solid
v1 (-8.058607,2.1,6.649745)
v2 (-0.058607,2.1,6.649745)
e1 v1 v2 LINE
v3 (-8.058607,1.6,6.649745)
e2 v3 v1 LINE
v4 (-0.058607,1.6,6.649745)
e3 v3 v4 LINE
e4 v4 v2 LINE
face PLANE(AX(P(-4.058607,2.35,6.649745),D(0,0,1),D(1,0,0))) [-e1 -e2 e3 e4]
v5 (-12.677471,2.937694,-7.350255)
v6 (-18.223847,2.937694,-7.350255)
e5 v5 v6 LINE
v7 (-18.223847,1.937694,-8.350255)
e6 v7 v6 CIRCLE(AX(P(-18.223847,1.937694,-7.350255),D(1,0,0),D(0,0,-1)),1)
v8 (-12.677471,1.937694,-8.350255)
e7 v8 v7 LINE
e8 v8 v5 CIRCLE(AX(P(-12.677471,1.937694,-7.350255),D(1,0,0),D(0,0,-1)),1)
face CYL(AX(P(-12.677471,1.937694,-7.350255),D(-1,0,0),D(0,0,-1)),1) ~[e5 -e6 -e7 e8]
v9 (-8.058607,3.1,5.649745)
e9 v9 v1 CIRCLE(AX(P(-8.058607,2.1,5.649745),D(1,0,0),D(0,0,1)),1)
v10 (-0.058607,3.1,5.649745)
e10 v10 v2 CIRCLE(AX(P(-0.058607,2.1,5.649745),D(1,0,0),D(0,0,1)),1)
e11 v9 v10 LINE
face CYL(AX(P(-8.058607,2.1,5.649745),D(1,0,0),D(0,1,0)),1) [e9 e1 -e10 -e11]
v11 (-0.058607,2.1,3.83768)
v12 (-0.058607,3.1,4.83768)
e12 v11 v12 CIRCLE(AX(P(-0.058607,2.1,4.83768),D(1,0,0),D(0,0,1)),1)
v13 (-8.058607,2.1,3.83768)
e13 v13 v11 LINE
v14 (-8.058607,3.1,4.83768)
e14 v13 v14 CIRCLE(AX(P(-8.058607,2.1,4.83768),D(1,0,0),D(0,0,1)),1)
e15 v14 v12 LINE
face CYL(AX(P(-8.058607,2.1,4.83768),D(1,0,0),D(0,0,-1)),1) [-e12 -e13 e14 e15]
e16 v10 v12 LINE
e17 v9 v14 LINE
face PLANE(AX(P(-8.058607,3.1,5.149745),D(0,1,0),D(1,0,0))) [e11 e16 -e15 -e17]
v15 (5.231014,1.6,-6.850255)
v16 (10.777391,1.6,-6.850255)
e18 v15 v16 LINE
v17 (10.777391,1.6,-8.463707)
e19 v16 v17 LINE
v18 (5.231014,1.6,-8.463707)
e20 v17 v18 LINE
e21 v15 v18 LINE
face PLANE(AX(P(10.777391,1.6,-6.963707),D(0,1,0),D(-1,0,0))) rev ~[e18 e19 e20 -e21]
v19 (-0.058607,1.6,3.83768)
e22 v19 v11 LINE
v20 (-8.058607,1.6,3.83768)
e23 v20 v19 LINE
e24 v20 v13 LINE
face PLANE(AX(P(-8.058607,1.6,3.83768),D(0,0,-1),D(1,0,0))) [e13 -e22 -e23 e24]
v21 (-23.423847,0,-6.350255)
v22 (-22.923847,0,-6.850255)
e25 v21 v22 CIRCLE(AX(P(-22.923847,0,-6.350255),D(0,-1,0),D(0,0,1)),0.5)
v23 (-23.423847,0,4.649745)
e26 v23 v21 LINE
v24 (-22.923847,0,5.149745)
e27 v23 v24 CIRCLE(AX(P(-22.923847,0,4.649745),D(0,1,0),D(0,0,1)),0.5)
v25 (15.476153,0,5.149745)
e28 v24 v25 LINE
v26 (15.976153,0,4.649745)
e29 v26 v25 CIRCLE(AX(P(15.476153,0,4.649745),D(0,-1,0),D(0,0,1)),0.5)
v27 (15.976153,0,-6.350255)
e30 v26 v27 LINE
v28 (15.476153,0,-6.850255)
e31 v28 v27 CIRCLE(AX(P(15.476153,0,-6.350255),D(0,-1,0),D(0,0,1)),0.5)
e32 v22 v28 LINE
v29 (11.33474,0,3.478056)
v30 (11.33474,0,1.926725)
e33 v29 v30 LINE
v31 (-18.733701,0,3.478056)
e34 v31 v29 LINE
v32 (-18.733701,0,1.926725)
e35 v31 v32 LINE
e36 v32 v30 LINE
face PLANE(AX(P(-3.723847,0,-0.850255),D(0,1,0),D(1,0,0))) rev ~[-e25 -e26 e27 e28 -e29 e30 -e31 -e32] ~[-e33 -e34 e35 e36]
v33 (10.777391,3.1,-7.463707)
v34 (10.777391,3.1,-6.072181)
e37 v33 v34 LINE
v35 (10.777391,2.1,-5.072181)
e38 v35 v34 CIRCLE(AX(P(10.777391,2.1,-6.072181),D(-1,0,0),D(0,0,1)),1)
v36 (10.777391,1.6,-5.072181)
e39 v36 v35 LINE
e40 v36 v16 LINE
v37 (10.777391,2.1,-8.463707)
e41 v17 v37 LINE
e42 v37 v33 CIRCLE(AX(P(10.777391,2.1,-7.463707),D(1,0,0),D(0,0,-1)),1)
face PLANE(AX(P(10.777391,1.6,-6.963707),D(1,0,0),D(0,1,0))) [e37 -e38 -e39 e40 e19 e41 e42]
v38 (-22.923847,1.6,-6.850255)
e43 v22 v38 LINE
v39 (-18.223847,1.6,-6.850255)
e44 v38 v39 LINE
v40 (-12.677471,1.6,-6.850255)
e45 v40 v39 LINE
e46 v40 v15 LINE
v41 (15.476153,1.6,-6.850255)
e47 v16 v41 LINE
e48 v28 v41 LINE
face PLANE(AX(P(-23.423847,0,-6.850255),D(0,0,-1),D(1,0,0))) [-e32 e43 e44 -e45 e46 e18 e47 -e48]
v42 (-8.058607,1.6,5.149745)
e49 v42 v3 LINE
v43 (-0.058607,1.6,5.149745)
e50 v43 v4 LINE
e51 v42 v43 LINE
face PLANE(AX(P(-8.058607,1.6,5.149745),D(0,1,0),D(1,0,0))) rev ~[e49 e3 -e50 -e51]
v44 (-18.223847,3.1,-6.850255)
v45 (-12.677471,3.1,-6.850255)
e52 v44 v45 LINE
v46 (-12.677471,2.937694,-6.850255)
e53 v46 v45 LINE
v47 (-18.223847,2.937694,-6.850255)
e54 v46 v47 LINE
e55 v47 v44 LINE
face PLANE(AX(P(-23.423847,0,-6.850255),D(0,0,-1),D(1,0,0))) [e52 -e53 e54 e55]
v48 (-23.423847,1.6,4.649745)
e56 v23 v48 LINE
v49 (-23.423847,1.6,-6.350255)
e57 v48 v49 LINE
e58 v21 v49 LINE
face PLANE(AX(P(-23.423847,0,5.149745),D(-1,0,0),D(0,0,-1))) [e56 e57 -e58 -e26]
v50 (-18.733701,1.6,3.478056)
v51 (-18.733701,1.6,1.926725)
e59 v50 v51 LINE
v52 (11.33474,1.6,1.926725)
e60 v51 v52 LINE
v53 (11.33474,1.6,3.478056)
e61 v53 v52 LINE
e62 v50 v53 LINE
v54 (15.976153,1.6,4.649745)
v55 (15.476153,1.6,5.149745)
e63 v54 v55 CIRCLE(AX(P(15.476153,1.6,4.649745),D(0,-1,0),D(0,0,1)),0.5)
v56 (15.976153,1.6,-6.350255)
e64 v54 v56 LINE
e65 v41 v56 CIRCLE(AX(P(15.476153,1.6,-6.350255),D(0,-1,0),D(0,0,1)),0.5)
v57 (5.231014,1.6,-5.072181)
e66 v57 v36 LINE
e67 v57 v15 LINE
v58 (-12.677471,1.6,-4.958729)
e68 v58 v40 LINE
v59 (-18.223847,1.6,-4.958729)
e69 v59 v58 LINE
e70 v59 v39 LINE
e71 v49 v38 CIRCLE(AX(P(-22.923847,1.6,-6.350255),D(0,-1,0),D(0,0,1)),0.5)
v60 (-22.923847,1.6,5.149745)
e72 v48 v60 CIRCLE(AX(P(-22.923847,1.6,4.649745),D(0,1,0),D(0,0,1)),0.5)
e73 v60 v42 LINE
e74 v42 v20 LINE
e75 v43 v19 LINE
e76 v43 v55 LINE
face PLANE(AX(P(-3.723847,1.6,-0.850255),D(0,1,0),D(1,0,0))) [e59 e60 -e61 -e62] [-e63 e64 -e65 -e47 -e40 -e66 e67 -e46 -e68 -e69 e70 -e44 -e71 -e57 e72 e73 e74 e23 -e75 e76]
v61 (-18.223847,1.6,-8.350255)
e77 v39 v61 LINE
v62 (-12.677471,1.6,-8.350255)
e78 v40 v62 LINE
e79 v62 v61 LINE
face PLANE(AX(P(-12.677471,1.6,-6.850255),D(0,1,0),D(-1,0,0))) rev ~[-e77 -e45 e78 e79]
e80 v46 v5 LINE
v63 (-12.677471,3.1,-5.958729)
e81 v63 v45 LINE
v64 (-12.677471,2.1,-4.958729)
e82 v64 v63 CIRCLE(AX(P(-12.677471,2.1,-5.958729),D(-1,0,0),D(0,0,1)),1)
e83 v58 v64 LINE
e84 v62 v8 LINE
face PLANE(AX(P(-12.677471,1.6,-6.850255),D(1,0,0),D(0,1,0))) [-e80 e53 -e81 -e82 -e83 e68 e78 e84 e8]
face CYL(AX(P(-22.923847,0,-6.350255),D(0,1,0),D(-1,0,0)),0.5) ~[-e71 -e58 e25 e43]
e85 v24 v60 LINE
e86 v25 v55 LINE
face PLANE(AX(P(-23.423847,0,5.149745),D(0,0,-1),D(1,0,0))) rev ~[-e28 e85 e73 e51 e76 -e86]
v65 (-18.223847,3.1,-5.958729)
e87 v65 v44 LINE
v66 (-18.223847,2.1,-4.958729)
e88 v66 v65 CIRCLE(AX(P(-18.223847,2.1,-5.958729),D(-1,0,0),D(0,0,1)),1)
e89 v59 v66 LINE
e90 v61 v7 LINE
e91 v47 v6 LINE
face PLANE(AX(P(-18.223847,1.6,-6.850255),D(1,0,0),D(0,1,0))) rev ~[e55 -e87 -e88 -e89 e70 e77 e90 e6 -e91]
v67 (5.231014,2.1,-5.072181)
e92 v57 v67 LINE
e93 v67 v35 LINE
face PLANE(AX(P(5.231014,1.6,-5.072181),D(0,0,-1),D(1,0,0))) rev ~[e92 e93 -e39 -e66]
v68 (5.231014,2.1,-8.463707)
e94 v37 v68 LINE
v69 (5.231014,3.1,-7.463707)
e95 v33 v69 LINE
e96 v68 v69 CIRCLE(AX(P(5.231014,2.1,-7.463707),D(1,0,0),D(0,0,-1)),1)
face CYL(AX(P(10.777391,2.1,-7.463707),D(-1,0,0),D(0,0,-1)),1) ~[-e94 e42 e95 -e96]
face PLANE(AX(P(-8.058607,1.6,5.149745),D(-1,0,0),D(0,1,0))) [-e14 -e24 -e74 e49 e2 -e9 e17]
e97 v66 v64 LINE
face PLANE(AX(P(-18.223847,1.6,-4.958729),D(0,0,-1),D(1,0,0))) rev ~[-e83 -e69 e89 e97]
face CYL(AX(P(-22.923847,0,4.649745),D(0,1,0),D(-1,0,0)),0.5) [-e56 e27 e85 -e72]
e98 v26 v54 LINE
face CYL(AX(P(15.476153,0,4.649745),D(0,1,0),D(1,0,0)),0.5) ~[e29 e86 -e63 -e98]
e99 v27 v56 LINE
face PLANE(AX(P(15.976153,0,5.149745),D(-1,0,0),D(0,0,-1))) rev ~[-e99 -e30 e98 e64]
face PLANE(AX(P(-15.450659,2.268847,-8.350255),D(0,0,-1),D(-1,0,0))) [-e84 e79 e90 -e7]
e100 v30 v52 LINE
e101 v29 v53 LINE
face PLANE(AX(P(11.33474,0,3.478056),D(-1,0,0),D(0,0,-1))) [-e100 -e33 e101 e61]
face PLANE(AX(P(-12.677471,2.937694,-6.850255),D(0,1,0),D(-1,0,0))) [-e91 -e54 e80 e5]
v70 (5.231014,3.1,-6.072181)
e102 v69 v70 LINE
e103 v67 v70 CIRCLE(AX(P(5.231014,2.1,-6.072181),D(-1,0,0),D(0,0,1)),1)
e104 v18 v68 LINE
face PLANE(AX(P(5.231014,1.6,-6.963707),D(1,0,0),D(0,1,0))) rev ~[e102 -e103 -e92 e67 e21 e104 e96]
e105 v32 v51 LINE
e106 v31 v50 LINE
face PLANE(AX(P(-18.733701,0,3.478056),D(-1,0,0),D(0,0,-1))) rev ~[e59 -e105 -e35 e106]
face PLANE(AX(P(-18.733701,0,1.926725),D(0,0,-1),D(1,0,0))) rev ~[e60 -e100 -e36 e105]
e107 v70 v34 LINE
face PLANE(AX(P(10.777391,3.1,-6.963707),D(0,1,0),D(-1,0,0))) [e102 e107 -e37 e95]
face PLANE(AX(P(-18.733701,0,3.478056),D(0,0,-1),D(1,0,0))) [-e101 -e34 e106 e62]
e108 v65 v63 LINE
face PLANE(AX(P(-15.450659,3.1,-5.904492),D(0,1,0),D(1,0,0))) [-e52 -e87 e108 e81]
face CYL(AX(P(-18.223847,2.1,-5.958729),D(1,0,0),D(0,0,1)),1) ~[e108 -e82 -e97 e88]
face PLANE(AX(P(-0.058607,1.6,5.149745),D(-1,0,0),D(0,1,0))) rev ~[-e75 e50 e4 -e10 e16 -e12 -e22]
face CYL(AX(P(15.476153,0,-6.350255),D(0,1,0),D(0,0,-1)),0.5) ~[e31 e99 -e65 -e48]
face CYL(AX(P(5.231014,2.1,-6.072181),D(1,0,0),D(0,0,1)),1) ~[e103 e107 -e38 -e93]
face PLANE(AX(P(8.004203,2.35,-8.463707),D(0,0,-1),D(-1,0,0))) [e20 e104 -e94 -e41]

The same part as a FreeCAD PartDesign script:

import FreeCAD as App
import Part
import Sketcher
from FreeCAD import Vector


def edges_at(feature, points):
    """Names of the edges that pass closest to the given points."""
    edges = feature.Shape.Edges
    near = lambda p: min(range(len(edges)), key=lambda i: edges[i].distToShape(Part.Vertex(*p))[0])
    return sorted({f"Edge{near(p) + 1}" for p in points})

doc = App.newDocument("Part")
body = doc.addObject("PartDesign::Body", "Body")

# Sketch on XZ plane
sketch1 = body.newObject("Sketcher::SketchObject", "Sketch")
sketch1.AttachmentSupport = (doc.getObject("XZ_Plane"), [""])
sketch1.MapMode = "FlatFace"
sketch1.addGeometry([
    Part.LineSegment(Vector(-23.4, -6.9, 0), Vector(-23.4, 5.1, 0)),  # 0
    Part.LineSegment(Vector(-23.4, 5.1, 0), Vector(16, 5.1, 0)),  # 1
    Part.LineSegment(Vector(16, 5.1, 0), Vector(16, -6.9, 0)),  # 2
    Part.LineSegment(Vector(16, -6.9, 0), Vector(-23.4, -6.9, 0)),  # 3
    Part.LineSegment(Vector(11.3, 3.5, 0), Vector(-18.7, 3.5, 0)),  # 4
    Part.LineSegment(Vector(-18.7, 3.5, 0), Vector(-18.7, 1.9, 0)),  # 5
    Part.LineSegment(Vector(-18.7, 1.9, 0), Vector(11.3, 1.9, 0)),  # 6
    Part.LineSegment(Vector(11.3, 1.9, 0), Vector(11.3, 3.5, 0)),  # 7
], False)
sketch1.addConstraint([
    Sketcher.Constraint("Coincident", 0, 2, 1, 1),
    Sketcher.Constraint("Coincident", 1, 2, 2, 1),
    Sketcher.Constraint("Coincident", 2, 2, 3, 1),
    Sketcher.Constraint("Coincident", 3, 2, 0, 1),
    Sketcher.Constraint("Coincident", 4, 2, 5, 1),
    Sketcher.Constraint("Coincident", 5, 2, 6, 1),
    Sketcher.Constraint("Coincident", 6, 2, 7, 1),
    Sketcher.Constraint("Coincident", 7, 2, 4, 1),
    Sketcher.Constraint("Vertical", 0),
    Sketcher.Constraint("Horizontal", 1),
    Sketcher.Constraint("Vertical", 2),
    Sketcher.Constraint("Horizontal", 3),
    Sketcher.Constraint("Horizontal", 4),
    Sketcher.Constraint("Vertical", 5),
    Sketcher.Constraint("Horizontal", 6),
    Sketcher.Constraint("Vertical", 7),
    Sketcher.Constraint("DistanceY", 0, 1, 0, 2, 12.0),
    Sketcher.Constraint("DistanceX", 1, 1, 1, 2, 39.4),
    Sketcher.Constraint("DistanceX", 4, 2, 4, 1, 30.068441),
    Sketcher.Constraint("DistanceY", 5, 2, 5, 1, 1.551331),
    Sketcher.Constraint("DistanceX", 4, 2, -1, 1, 18.733701),
    Sketcher.Constraint("DistanceY", 4, 2, 0, 2, 1.671689),
    Sketcher.Constraint("DistanceX", 0, 2, -1, 1, 23.423847),
    Sketcher.Constraint("DistanceY", -1, 1, 0, 2, 5.149745),
])
pad1 = body.newObject("PartDesign::Pad", "Pad")
pad1.Profile = sketch1
pad1.Length = 1.6
pad1.Reversed = True

# Sketch on XZ plane
sketch2 = body.newObject("Sketcher::SketchObject", "Sketch001")
sketch2.AttachmentSupport = (doc.getObject("XZ_Plane"), [""])
sketch2.MapMode = "FlatFace"
sketch2.AttachmentOffset = App.Placement(Vector(0, 0, -1.6), App.Rotation())
sketch2.addGeometry([
    Part.LineSegment(Vector(-18.2, -6.9, 0), Vector(-18.2, -5, 0)),  # 0
    Part.LineSegment(Vector(-18.2, -5, 0), Vector(-12.7, -5, 0)),  # 1
    Part.LineSegment(Vector(-12.7, -5, 0), Vector(-12.7, -6.9, 0)),  # 2
    Part.LineSegment(Vector(-12.7, -6.9, 0), Vector(-18.2, -6.9, 0)),  # 3
    Part.LineSegment(Vector(5.2, -7, 0), Vector(5.2, -5.1, 0)),  # 4
    Part.LineSegment(Vector(5.2, -5.1, 0), Vector(10.8, -5.1, 0)),  # 5
    Part.LineSegment(Vector(10.8, -5.1, 0), Vector(10.8, -7, 0)),  # 6
    Part.LineSegment(Vector(10.8, -7, 0), Vector(5.2, -7, 0)),  # 7
    Part.LineSegment(Vector(-8.1, 3.8, 0), Vector(-8.1, 5.1, 0)),  # 8
    Part.LineSegment(Vector(-8.1, 5.1, 0), Vector(-0.1, 5.1, 0)),  # 9
    Part.LineSegment(Vector(-0.1, 5.1, 0), Vector(-0.1, 3.8, 0)),  # 10
    Part.LineSegment(Vector(-0.1, 3.8, 0), Vector(-8.1, 3.8, 0)),  # 11
], False)
sketch2.addConstraint([
    Sketcher.Constraint("Coincident", 0, 2, 1, 1),
    Sketcher.Constraint("Coincident", 1, 2, 2, 1),
    Sketcher.Constraint("Coincident", 2, 2, 3, 1),
    Sketcher.Constraint("Coincident", 3, 2, 0, 1),
    Sketcher.Constraint("Coincident", 4, 2, 5, 1),
    Sketcher.Constraint("Coincident", 5, 2, 6, 1),
    Sketcher.Constraint("Coincident", 6, 2, 7, 1),
    Sketcher.Constraint("Coincident", 7, 2, 4, 1),
    Sketcher.Constraint("Coincident", 8, 2, 9, 1),
    Sketcher.Constraint("Coincident", 9, 2, 10, 1),
    Sketcher.Constraint("Coincident", 10, 2, 11, 1),
    Sketcher.Constraint("Coincident", 11, 2, 8, 1),
    Sketcher.Constraint("Vertical", 0),
    Sketcher.Constraint("Horizontal", 1),
    Sketcher.Constraint("Vertical", 2),
    Sketcher.Constraint("Horizontal", 3),
    Sketcher.Constraint("Vertical", 4),
    Sketcher.Constraint("Horizontal", 5),
    Sketcher.Constraint("Vertical", 6),
    Sketcher.Constraint("Horizontal", 7),
    Sketcher.Constraint("Vertical", 8),
    Sketcher.Constraint("Horizontal", 9),
    Sketcher.Constraint("Vertical", 10),
    Sketcher.Constraint("Horizontal", 11),
    Sketcher.Constraint("Equal", 3, 5),
    Sketcher.Constraint("Equal", 2, 4),
    Sketcher.Constraint("DistanceX", 9, 1, 9, 2, 8.0),
    Sketcher.Constraint("DistanceY", 2, 2, 8, 2, 12.0),
    Sketcher.Constraint("DistanceX", 1, 1, 1, 2, 5.546376),
    Sketcher.Constraint("DistanceY", 0, 1, 0, 2, 1.891526),
    Sketcher.Constraint("DistanceY", 8, 1, 8, 2, 1.312065),
    Sketcher.Constraint("DistanceY", 0, 2, -1, 1, 4.958729),
    Sketcher.Constraint("DistanceX", 1, 2, -1, 1, 12.677471),
    Sketcher.Constraint("DistanceY", 4, 2, -1, 1, 5.072181),
    Sketcher.Constraint("DistanceX", -1, 1, 5, 2, 10.777391),
    Sketcher.Constraint("DistanceX", 0, 2, 8, 2, 10.16524),
])
pad2 = body.newObject("PartDesign::Pad", "Pad001")
pad2.Profile = sketch2
pad2.Length = 1.5
pad2.Reversed = True

# Sketch on XY plane
sketch3 = body.newObject("Sketcher::SketchObject", "Sketch002")
sketch3.AttachmentSupport = (doc.getObject("XY_Plane"), [""])
sketch3.MapMode = "FlatFace"
sketch3.AttachmentOffset = App.Placement(Vector(0, 0, -6.850255), App.Rotation())
sketch3.addGeometry([
    Part.LineSegment(Vector(-12.7, 2.9, 0), Vector(-12.7, 1.6, 0)),
    Part.LineSegment(Vector(-12.7, 1.6, 0), Vector(-18.2, 1.6, 0)),
    Part.LineSegment(Vector(-18.2, 1.6, 0), Vector(-18.2, 2.9, 0)),
    Part.LineSegment(Vector(-18.2, 2.9, 0), Vector(-12.7, 2.9, 0)),
], False)
sketch3.addConstraint([
    Sketcher.Constraint("Coincident", 0, 2, 1, 1),
    Sketcher.Constraint("Coincident", 1, 2, 2, 1),
    Sketcher.Constraint("Coincident", 2, 2, 3, 1),
    Sketcher.Constraint("Coincident", 3, 2, 0, 1),
    Sketcher.Constraint("Vertical", 0),
    Sketcher.Constraint("Horizontal", 1),
    Sketcher.Constraint("Vertical", 2),
    Sketcher.Constraint("Horizontal", 3),
    Sketcher.Constraint("DistanceY", -1, 1, 0, 2, 1.6),
    Sketcher.Constraint("DistanceX", 1, 2, 1, 1, 5.546376),
    Sketcher.Constraint("DistanceY", 0, 2, 0, 1, 1.337694),
    Sketcher.Constraint("DistanceX", 0, 2, -1, 1, 12.677471),
])
pad3 = body.newObject("PartDesign::Pad", "Pad002")
pad3.Profile = sketch3
pad3.Length = 1.5
pad3.Reversed = True

# Sketch on XY plane
sketch4 = body.newObject("Sketcher::SketchObject", "Sketch003")
sketch4.AttachmentSupport = (doc.getObject("XY_Plane"), [""])
sketch4.MapMode = "FlatFace"
sketch4.AttachmentOffset = App.Placement(Vector(0, 0, -6.963707), App.Rotation())
sketch4.addGeometry([
    Part.LineSegment(Vector(10.8, 3.1, 0), Vector(10.8, 1.6, 0)),
    Part.LineSegment(Vector(10.8, 1.6, 0), Vector(5.2, 1.6, 0)),
    Part.LineSegment(Vector(5.2, 1.6, 0), Vector(5.2, 3.1, 0)),
    Part.LineSegment(Vector(5.2, 3.1, 0), Vector(10.8, 3.1, 0)),
], False)
sketch4.addConstraint([
    Sketcher.Constraint("Coincident", 0, 2, 1, 1),
    Sketcher.Constraint("Coincident", 1, 2, 2, 1),
    Sketcher.Constraint("Coincident", 2, 2, 3, 1),
    Sketcher.Constraint("Coincident", 3, 2, 0, 1),
    Sketcher.Constraint("Vertical", 0),
    Sketcher.Constraint("Horizontal", 1),
    Sketcher.Constraint("Vertical", 2),
    Sketcher.Constraint("Horizontal", 3),
    Sketcher.Constraint("DistanceY", 0, 2, 0, 1, 1.5),
    Sketcher.Constraint("DistanceY", -1, 1, 0, 2, 1.6),
    Sketcher.Constraint("DistanceX", 1, 2, 1, 1, 5.546376),
    Sketcher.Constraint("DistanceX", -1, 1, 0, 2, 10.777391),
])
pad4 = body.newObject("PartDesign::Pad", "Pad003")
pad4.Profile = sketch4
pad4.Length = 1.5
pad4.Reversed = True

# Sketch on XY plane
sketch5 = body.newObject("Sketcher::SketchObject", "Sketch004")
sketch5.AttachmentSupport = (doc.getObject("XY_Plane"), [""])
sketch5.MapMode = "FlatFace"
sketch5.AttachmentOffset = App.Placement(Vector(0, 0, 5.149745), App.Rotation())
sketch5.addGeometry([
    Part.LineSegment(Vector(-8.1, 3.1, 0), Vector(-8.1, 1.6, 0)),
    Part.LineSegment(Vector(-8.1, 1.6, 0), Vector(-0.1, 1.6, 0)),
    Part.LineSegment(Vector(-0.1, 1.6, 0), Vector(-0.1, 3.1, 0)),
    Part.LineSegment(Vector(-0.1, 3.1, 0), Vector(-8.1, 3.1, 0)),
], False)
sketch5.addConstraint([
    Sketcher.Constraint("Coincident", 0, 2, 1, 1),
    Sketcher.Constraint("Coincident", 1, 2, 2, 1),
    Sketcher.Constraint("Coincident", 2, 2, 3, 1),
    Sketcher.Constraint("Coincident", 3, 2, 0, 1),
    Sketcher.Constraint("Vertical", 0),
    Sketcher.Constraint("Horizontal", 1),
    Sketcher.Constraint("Vertical", 2),
    Sketcher.Constraint("Horizontal", 3),
    Sketcher.Constraint("DistanceX", 1, 1, 1, 2, 8.0),
    Sketcher.Constraint("DistanceY", 0, 2, 0, 1, 1.5),
    Sketcher.Constraint("DistanceY", -1, 1, 0, 2, 1.6),
    Sketcher.Constraint("DistanceX", 0, 2, -1, 1, 8.058607),
])
pad5 = body.newObject("PartDesign::Pad", "Pad004")
pad5.Profile = sketch5
pad5.Length = 1.5
doc.recompute()

fillet = body.newObject("PartDesign::Fillet", "Fillet")
fillet.Base = (pad5, edges_at(pad5, [(-4.059, 3.1, 6.65)]))
fillet.Radius = 1
doc.recompute()

fillet2 = body.newObject("PartDesign::Fillet", "Fillet001")
fillet2.Base = (fillet, edges_at(fillet, [(-15.451, 2.938, -8.35), (8.004, 3.1, -8.464)]))
fillet2.Radius = 1
doc.recompute()

fillet3 = body.newObject("PartDesign::Fillet", "Fillet002")
fillet3.Base = (fillet2, edges_at(fillet2, [(8.004, 3.1, -5.072), (-15.451, 3.1, -4.959)]))
fillet3.Radius = 1
doc.recompute()

fillet4 = body.newObject("PartDesign::Fillet", "Fillet003")
fillet4.Base = (fillet3, edges_at(fillet3, [(-4.059, 3.1, 3.838)]))
fillet4.Radius = 1
doc.recompute()

fillet5 = body.newObject("PartDesign::Fillet", "Fillet004")
fillet5.Base = (fillet4, edges_at(fillet4, [
    (-23.424, 0.8, -6.85),
    (15.976, 0.8, -6.85),
    (15.976, 0.8, 5.15),
    (-23.424, 0.8, 5.15),
]))
fillet5.Radius = 0.5

doc.recompute()
